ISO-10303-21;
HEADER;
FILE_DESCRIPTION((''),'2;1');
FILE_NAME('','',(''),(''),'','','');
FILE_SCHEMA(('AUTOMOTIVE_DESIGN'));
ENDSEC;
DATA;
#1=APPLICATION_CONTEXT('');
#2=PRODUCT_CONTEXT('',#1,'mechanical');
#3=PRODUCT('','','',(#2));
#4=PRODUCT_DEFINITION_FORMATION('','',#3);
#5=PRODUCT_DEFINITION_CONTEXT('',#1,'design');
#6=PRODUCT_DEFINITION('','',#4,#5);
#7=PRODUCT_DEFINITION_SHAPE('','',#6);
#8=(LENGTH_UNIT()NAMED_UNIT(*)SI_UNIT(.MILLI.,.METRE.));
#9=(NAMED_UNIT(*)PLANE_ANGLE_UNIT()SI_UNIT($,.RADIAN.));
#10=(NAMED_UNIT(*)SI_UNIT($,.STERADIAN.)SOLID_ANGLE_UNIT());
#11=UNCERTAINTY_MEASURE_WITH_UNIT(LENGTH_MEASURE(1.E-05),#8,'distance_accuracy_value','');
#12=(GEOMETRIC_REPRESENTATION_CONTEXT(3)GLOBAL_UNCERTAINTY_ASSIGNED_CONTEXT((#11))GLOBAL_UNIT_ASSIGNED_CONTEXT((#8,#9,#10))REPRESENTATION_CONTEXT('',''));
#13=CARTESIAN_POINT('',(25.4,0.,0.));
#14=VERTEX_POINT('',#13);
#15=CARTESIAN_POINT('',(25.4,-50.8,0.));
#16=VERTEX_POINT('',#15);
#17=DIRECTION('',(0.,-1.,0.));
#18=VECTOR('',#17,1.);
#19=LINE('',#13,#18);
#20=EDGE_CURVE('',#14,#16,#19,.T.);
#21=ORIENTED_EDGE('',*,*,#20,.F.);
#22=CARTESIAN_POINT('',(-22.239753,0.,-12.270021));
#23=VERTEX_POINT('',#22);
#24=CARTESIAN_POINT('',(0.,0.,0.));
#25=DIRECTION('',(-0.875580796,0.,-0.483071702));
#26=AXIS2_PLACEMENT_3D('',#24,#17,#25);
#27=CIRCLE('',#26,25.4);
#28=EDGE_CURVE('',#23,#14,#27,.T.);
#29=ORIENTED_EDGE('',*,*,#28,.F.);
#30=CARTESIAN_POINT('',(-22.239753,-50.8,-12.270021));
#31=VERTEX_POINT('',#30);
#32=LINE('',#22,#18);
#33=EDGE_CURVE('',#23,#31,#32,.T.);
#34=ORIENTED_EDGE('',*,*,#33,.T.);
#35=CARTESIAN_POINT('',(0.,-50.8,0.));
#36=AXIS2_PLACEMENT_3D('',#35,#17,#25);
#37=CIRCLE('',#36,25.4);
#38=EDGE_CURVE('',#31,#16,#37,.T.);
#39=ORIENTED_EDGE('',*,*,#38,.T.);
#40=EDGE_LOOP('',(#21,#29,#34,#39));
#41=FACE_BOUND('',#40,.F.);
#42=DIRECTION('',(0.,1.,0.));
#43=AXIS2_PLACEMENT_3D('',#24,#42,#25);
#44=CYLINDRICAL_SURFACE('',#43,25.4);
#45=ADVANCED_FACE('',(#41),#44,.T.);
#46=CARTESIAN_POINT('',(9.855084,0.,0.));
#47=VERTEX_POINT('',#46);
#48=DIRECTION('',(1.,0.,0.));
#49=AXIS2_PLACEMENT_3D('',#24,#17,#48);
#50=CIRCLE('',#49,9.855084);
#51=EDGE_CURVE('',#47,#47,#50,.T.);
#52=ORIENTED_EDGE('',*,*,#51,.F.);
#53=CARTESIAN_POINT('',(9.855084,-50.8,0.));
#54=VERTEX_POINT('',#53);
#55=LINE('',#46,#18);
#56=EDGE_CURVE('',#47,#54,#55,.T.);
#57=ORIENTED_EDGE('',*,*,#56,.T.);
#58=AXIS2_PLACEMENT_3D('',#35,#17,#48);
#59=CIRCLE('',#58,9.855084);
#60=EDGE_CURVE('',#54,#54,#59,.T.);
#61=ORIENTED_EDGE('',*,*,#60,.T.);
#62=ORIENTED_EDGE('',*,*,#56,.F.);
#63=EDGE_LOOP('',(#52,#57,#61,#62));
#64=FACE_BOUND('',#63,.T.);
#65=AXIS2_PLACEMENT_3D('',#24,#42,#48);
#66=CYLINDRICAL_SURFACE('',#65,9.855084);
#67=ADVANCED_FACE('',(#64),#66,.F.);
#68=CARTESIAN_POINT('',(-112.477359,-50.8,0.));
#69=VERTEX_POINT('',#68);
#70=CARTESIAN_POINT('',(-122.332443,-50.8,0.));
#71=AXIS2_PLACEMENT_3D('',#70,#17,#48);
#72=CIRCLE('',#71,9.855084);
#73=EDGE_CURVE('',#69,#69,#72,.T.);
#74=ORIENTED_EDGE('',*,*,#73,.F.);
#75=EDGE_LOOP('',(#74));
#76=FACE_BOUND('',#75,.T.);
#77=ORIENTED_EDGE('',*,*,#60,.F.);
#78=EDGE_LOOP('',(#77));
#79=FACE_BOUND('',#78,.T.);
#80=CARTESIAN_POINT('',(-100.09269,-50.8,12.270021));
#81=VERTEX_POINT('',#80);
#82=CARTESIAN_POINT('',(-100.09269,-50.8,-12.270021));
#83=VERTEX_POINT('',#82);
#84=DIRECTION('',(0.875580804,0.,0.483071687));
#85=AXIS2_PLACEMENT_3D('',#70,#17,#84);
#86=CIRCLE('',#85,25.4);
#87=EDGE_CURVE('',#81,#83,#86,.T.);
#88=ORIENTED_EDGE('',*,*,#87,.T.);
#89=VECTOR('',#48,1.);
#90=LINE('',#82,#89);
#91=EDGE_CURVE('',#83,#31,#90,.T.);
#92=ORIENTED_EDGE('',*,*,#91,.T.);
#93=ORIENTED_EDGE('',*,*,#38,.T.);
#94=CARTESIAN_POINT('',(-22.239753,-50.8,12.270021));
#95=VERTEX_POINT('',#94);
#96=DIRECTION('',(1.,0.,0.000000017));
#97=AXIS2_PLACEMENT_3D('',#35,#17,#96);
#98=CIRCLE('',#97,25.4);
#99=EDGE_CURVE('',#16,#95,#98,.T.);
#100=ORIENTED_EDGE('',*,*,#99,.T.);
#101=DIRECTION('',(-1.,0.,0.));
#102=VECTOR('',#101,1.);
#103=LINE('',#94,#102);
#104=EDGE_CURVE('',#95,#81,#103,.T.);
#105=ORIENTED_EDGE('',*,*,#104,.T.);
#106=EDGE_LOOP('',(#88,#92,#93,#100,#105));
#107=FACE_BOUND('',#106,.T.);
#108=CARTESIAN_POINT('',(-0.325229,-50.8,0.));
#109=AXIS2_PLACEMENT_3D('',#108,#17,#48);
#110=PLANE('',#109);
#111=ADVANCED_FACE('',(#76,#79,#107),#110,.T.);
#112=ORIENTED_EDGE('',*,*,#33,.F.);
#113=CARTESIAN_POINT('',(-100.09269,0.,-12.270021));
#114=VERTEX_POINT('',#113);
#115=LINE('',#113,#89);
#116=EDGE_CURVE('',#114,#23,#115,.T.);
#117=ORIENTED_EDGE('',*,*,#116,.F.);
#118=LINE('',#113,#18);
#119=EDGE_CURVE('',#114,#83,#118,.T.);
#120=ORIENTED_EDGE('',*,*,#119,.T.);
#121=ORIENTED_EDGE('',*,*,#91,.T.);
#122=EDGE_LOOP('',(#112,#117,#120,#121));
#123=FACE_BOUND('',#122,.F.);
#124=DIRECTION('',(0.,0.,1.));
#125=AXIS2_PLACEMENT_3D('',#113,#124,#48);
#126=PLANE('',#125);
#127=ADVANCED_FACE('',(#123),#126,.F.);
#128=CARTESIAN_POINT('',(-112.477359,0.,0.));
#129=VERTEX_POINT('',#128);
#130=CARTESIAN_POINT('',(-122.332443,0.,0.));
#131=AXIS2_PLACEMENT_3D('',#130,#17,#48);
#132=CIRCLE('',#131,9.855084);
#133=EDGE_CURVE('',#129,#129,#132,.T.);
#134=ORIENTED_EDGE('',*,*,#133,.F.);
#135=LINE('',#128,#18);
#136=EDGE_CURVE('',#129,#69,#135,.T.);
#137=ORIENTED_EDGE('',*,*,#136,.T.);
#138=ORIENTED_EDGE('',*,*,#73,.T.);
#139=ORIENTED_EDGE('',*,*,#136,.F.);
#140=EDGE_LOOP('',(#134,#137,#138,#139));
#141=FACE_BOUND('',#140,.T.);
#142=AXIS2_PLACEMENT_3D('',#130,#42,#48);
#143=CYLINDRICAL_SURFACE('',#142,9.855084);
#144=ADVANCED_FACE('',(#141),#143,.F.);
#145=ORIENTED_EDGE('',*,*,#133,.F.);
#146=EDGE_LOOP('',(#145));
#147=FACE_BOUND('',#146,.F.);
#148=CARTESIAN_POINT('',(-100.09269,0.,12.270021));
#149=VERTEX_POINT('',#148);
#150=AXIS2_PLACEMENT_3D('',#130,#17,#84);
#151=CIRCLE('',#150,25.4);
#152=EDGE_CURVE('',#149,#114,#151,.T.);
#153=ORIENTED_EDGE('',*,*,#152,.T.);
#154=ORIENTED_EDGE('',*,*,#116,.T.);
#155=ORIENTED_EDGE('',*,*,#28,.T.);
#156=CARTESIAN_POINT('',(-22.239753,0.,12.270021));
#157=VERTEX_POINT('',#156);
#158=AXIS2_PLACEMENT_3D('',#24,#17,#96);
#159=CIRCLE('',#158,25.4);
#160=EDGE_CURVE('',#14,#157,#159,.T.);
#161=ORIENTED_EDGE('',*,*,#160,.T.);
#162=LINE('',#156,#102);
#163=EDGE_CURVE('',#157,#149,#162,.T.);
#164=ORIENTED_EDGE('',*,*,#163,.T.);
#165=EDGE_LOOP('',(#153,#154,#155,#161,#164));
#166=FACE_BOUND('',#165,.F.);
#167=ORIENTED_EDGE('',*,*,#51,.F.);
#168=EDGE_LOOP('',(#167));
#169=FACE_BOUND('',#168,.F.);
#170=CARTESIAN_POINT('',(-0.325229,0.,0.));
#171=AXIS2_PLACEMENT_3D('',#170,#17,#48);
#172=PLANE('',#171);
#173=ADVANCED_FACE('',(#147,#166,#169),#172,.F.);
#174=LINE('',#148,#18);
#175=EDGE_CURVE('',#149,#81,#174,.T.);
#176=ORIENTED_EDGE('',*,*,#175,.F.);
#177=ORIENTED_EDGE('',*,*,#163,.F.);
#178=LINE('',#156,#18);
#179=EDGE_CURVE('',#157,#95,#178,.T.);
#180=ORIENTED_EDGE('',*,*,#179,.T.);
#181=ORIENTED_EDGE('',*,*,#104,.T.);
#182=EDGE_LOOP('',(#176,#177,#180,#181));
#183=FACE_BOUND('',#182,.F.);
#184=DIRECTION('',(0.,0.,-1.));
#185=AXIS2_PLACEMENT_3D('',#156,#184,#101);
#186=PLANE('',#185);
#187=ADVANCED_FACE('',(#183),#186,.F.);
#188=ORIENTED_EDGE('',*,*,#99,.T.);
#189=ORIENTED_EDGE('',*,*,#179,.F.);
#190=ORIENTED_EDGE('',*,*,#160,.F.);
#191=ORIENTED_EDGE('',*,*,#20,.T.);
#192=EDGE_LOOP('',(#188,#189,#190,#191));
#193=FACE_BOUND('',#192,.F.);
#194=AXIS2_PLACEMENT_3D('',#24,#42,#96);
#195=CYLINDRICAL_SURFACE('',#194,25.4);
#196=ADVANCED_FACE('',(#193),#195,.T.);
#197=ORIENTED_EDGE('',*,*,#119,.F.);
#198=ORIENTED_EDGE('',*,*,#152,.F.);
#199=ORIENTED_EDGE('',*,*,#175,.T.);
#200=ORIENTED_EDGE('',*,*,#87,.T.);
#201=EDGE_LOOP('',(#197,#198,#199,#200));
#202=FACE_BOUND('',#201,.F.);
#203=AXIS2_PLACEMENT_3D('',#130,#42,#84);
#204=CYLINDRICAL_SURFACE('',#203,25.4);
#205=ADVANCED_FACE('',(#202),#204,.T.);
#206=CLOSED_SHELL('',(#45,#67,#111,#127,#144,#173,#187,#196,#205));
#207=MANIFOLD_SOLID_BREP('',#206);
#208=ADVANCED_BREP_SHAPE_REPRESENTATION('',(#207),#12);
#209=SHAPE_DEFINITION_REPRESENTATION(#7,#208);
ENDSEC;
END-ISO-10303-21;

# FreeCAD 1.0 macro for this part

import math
import FreeCAD as App
import Part
import Sketcher

V = App.Vector
Q = App.Units.Quantity

doc = App.newDocument("Part")
body = doc.addObject("PartDesign::Body", "Body")

# Sketch on XZ plane
sketch1 = doc.addObject("Sketcher::SketchObject", "Sketch")
body.addObject(sketch1)
sketch1.AttachmentSupport = (doc.XZ_Plane, [""])
sketch1.MapMode = "FlatFace"
sketch1.addGeometry(Part.ArcOfCircle(Part.Circle(V(0, 0, 0), V(0, 0, 1), 25.4), math.radians(-151.113787), math.radians(-0.000001)), False)
sketch1.addGeometry(Part.ArcOfCircle(Part.Circle(V(0, 0, 0), V(0, 0, 1), 25.4), math.radians(0.000001), math.radians(151.113787)), False)
sketch1.addGeometry(Part.LineSegment(V(-22.239753, 12.270021, 0), V(-100.09269, 12.270021, 0)), False)
sketch1.addGeometry(Part.ArcOfCircle(Part.Circle(V(-122.332443, 0, 0), V(0, 0, 1), 25.4), math.radians(28.886212), math.radians(331.113788)), False)
sketch1.addGeometry(Part.LineSegment(V(-100.09269, -12.270021, 0), V(-22.239753, -12.270021, 0)), False)
sketch1.addGeometry(Part.Circle(V(0, 0, 0), V(0, 0, 1), 9.855084), False)
sketch1.addGeometry(Part.Circle(V(-122.332443, 0, 0), V(0, 0, 1), 9.855084), False)
sketch1.addConstraint(Sketcher.Constraint("Tangent", 0, 2, 1, 1))
sketch1.addConstraint(Sketcher.Constraint("Coincident", 1, 2, 2, 1))
sketch1.addConstraint(Sketcher.Constraint("Coincident", 2, 2, 3, 1))
sketch1.addConstraint(Sketcher.Constraint("Coincident", 3, 2, 4, 1))
sketch1.addConstraint(Sketcher.Constraint("Coincident", 4, 2, 0, 1))
sketch1.addConstraint(Sketcher.Constraint("Horizontal", 2))
sketch1.addConstraint(Sketcher.Constraint("Horizontal", 4))
sketch1.addConstraint(Sketcher.Constraint("Coincident", 0, 3, -1, 1))
sketch1.addConstraint(Sketcher.Constraint("Coincident", 5, 3, -1, 1))
sketch1.addConstraint(Sketcher.Constraint("Coincident", 6, 3, 3, 3))
sketch1.addConstraint(Sketcher.Constraint("Equal", 0, 1))
sketch1.addConstraint(Sketcher.Constraint("Equal", 1, 3))
sketch1.addConstraint(Sketcher.Constraint("Equal", 5, 6))
sketch1.addConstraint(Sketcher.Constraint("Symmetric", 2, 2, 3, 2, -1))
sketch1.addConstraint(Sketcher.Constraint("PointOnObject", 0, 2, -1))
sketch1.addConstraint(Sketcher.Constraint("Radius", 0, Q("1 in")))
sketch1.addConstraint(Sketcher.Constraint("Diameter", 5, 19.710168))
sketch1.addConstraint(Sketcher.Constraint("DistanceX", 2, 2, 2, 1, 77.852937))
sketch1.addConstraint(Sketcher.Constraint("DistanceY", -1, 1, 1, 2, 12.270021))
pad1 = doc.addObject("PartDesign::Pad", "Pad")
body.addObject(pad1)
pad1.Profile = sketch1
pad1.Length = Q("2 in")

doc.recompute()
